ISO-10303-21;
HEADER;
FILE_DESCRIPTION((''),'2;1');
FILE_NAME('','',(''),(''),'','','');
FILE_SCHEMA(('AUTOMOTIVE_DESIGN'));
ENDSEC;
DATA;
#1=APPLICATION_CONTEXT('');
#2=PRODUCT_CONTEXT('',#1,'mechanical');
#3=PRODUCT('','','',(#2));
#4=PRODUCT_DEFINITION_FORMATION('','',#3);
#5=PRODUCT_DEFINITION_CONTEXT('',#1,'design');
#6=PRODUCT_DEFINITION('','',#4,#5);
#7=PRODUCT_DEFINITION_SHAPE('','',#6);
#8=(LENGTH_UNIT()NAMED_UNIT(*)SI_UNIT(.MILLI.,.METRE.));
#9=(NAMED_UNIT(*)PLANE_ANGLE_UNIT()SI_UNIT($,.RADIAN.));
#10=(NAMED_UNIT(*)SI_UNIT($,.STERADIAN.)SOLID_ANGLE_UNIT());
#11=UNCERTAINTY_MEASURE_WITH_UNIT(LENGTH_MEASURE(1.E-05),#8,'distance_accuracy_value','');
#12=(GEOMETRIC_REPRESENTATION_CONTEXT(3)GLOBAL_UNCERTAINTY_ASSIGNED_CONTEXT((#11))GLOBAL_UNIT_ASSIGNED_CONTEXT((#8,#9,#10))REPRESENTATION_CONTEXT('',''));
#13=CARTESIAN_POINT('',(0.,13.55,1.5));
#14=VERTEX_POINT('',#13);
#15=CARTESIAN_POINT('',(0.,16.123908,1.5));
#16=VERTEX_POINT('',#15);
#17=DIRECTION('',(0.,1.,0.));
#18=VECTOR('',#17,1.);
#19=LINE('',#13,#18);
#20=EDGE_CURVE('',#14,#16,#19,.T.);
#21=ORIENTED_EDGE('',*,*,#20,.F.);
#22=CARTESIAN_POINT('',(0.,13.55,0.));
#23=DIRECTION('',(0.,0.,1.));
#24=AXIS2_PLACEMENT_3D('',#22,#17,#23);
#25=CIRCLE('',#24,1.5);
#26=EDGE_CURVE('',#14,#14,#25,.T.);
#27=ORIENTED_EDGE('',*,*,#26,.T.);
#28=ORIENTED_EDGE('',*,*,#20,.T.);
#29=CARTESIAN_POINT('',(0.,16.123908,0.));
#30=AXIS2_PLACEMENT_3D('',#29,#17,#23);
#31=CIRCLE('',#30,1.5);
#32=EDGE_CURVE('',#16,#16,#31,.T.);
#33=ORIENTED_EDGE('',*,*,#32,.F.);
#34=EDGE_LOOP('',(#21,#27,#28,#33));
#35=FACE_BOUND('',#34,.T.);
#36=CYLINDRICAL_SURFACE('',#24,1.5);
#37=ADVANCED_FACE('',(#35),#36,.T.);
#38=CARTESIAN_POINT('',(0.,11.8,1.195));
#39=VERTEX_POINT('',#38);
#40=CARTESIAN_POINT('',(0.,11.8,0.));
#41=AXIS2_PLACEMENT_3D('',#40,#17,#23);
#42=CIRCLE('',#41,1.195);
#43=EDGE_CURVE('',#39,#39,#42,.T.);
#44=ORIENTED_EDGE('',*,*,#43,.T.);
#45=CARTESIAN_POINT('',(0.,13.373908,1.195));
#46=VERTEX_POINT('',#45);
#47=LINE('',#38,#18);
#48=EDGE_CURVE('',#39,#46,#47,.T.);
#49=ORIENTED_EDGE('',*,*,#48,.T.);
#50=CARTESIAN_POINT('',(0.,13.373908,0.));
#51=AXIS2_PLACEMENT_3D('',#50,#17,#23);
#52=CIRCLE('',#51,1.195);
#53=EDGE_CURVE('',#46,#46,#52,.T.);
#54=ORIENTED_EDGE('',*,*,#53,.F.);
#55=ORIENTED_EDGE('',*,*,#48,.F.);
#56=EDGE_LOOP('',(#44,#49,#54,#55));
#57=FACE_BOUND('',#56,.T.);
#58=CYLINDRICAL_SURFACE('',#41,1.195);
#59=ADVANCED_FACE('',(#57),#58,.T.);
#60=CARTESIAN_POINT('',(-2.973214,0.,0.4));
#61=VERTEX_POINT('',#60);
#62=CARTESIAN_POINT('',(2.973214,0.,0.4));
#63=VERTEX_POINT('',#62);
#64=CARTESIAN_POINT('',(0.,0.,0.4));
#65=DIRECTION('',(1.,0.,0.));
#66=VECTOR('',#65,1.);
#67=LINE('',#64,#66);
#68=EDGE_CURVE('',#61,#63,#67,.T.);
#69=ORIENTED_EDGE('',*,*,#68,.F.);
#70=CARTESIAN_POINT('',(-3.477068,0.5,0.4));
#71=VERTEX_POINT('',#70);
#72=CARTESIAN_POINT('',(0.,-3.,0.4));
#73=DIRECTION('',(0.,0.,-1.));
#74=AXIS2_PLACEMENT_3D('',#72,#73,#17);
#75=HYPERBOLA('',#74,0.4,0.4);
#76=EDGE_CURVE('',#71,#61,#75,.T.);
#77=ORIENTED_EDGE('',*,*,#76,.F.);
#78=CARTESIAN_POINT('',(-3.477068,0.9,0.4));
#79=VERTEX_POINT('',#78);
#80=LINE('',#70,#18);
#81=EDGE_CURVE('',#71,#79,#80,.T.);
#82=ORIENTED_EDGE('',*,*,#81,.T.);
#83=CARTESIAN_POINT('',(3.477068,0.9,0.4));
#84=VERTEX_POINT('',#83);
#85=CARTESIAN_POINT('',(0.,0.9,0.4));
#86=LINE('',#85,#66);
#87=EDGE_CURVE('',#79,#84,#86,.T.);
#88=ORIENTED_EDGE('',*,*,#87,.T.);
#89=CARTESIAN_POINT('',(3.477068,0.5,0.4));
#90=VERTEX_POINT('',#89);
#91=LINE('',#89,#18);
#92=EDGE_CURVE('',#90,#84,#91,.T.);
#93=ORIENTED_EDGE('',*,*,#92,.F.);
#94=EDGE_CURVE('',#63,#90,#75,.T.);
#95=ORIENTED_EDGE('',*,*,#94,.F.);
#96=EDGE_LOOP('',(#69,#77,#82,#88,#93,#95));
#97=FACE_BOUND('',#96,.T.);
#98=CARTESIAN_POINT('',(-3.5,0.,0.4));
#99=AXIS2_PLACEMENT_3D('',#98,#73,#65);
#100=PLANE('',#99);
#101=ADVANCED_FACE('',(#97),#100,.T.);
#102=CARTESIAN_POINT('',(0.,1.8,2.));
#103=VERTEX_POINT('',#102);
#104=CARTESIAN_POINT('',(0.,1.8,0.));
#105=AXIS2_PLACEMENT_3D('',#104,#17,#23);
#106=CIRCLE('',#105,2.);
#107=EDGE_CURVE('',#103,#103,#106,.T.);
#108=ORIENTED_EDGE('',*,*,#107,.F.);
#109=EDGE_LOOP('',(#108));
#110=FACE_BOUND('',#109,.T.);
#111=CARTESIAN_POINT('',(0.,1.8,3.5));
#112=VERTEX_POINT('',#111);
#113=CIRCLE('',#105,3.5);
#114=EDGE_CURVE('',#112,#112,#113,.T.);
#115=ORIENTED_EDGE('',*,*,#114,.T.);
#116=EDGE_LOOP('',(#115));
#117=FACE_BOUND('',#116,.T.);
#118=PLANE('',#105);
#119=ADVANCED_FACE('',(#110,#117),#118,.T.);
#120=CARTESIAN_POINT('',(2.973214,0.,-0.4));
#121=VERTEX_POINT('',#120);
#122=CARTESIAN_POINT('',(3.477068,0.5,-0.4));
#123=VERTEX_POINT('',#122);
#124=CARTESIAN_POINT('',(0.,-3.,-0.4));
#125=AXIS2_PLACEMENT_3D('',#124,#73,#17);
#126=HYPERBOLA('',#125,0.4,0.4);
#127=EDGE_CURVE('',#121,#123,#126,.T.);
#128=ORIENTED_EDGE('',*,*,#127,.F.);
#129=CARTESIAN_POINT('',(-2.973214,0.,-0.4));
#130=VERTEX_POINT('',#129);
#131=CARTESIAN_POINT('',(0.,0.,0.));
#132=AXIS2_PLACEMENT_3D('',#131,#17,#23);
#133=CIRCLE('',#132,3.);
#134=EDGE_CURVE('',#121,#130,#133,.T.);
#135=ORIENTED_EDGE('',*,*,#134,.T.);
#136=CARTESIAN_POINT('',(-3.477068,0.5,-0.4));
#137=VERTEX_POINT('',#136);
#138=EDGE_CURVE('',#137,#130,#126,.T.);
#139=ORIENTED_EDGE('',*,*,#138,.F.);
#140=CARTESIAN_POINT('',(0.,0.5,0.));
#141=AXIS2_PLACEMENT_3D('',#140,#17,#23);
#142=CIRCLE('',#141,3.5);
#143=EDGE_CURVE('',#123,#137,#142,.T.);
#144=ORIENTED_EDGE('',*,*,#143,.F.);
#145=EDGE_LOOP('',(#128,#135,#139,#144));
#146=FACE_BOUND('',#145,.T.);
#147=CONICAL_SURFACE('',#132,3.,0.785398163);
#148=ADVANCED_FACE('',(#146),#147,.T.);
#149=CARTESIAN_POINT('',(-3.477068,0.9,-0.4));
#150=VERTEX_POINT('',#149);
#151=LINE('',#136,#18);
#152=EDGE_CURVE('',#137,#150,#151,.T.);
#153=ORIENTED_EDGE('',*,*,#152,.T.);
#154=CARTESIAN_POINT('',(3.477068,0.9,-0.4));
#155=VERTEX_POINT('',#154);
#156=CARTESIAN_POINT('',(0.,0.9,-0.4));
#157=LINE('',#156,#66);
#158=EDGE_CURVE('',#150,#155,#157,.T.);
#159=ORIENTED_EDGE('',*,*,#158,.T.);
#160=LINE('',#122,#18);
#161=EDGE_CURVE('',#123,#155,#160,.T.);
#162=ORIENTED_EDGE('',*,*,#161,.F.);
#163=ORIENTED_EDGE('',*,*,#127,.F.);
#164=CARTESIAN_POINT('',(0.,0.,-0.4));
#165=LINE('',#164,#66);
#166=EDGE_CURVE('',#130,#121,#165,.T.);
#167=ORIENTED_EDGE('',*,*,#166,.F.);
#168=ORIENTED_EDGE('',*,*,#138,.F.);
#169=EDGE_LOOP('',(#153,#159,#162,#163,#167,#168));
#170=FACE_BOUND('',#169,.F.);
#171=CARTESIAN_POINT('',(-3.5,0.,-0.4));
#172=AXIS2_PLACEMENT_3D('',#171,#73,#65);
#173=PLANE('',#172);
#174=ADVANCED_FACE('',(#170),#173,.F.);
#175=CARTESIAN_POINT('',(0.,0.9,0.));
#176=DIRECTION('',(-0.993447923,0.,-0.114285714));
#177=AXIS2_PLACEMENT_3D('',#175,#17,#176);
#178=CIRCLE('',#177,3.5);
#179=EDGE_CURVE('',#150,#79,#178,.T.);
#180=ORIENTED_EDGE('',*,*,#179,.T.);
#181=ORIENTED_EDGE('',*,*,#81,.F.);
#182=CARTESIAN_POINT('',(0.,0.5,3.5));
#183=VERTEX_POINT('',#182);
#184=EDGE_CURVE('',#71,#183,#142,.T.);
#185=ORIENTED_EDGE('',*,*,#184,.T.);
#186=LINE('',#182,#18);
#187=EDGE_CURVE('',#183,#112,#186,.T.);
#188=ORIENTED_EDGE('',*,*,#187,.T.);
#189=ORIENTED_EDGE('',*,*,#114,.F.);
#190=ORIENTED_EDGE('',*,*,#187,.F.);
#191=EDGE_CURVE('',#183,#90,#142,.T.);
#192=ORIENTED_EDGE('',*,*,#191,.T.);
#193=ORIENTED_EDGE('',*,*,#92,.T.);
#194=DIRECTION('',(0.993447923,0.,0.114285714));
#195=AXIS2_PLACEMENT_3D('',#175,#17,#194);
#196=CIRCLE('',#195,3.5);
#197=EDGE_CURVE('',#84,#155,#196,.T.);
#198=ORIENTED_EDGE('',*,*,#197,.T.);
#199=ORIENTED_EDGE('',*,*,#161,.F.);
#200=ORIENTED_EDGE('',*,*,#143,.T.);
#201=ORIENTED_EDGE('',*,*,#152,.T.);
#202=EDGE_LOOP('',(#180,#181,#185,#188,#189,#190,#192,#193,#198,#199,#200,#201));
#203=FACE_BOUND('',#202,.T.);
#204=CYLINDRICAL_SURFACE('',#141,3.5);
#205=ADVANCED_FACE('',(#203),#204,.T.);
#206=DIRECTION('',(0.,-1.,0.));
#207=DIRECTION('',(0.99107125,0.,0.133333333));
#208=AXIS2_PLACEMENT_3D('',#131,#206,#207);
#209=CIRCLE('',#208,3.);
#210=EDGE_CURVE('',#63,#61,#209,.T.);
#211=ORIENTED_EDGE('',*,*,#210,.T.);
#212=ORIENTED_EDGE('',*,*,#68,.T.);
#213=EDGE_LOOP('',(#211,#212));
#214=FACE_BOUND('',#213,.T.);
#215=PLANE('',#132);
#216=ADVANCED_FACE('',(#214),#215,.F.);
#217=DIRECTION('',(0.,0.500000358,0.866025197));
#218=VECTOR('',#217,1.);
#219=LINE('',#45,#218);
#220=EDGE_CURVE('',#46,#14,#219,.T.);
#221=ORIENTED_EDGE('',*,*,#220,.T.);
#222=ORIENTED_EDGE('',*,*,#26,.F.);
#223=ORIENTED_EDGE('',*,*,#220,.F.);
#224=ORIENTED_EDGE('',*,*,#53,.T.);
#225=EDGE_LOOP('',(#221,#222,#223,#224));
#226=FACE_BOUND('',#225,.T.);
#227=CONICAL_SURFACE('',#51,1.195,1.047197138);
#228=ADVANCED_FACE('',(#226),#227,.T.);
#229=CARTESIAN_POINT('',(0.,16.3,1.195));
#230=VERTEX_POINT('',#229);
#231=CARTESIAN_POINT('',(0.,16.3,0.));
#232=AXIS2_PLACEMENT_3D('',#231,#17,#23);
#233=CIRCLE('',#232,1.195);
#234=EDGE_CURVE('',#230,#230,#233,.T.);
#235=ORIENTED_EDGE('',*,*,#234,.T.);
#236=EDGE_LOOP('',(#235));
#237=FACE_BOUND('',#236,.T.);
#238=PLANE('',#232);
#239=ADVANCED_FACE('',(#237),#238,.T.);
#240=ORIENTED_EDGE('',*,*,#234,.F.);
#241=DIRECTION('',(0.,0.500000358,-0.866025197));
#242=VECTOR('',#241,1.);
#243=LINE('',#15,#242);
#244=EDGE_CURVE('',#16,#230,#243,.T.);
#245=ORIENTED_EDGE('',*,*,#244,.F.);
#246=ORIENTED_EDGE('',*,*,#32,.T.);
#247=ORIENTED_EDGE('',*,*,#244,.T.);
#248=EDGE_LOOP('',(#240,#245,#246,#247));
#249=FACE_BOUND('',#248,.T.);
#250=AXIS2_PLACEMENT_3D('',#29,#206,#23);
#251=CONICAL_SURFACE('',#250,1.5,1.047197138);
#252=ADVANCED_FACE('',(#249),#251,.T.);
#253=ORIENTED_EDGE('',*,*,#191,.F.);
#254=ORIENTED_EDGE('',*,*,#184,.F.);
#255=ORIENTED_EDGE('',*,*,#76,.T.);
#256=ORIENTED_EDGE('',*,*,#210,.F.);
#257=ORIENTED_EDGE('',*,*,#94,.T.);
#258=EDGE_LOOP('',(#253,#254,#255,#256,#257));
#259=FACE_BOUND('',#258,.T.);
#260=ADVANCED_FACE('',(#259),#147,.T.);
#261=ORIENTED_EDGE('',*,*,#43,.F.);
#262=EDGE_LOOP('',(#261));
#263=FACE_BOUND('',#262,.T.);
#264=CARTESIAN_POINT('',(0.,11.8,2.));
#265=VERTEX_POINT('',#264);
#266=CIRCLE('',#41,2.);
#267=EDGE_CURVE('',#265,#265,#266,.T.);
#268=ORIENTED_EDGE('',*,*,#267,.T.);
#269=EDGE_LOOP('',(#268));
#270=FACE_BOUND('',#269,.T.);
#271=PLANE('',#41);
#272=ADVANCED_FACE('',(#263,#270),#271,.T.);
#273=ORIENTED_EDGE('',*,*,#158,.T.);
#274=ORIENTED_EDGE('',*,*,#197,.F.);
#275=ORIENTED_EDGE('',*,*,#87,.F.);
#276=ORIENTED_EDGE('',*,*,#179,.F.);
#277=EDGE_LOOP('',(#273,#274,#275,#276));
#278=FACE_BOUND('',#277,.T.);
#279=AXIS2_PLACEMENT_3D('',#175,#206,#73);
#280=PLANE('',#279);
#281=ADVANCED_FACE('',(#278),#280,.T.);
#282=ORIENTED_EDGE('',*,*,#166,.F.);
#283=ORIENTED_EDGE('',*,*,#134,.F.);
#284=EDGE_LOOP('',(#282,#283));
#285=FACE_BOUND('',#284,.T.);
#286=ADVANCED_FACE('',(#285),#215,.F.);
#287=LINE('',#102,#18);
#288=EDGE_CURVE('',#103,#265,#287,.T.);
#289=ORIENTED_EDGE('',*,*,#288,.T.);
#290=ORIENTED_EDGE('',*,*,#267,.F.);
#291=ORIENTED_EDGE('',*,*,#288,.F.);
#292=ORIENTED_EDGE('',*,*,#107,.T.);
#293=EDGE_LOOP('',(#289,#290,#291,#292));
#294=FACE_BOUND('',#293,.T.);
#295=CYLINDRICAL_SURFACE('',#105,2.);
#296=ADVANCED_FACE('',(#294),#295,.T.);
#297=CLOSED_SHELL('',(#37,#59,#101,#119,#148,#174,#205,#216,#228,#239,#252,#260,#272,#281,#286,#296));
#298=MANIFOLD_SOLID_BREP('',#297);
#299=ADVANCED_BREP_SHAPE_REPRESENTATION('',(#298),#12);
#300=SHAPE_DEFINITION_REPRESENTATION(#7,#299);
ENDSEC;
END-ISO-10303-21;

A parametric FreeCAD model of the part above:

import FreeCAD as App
import Part
import Sketcher
Q = App.Units.Quantity


def add_polygon(sketch, points):
    """Adds a closed chain of lines whose ends are joined by coincident constraints."""
    first, n = sketch.GeometryCount, len(points)
    for a, b in zip(points, points[1:] + points[:1]):
        sketch.addGeometry(Part.LineSegment(App.Vector(*a, 0), App.Vector(*b, 0)), False)
    for i in range(n):
        sketch.addConstraint(Sketcher.Constraint("Coincident", first + i, 2, first + (i + 1) % n, 1))

doc = App.newDocument("Part")
params = doc.addObject("Spreadsheet::Sheet", "Params")
for row, (alias, value) in enumerate([
    ("sketch1_width", "10 mm"),
    ("sketch1_height", "3 mm"),
    ("sketch1_width2", "16.3 mm"),
    ("sketch1_width3", "1.3 mm"),
    ("sketch1_height2", "1.5 mm"),
    ("revolution_angle", "360 deg"),
    ("sketch2_width", "7 mm"),
    ("sketch2_height", "0.8 mm"),
    ("pocket1_length", "0.9 mm"),
], start=1):
    params.set(f"A{row}", alias)
    params.set(f"B{row}", "=" + value)
    params.setAlias(f"B{row}", alias)

body = doc.addObject("PartDesign::Body", "Body")

sketch1 = body.newObject("Sketcher::SketchObject", "Sketch")
sketch1.AttachmentSupport = (doc.getObject("YZ_Plane"), [""])
sketch1.MapMode = "FlatFace"
add_polygon(sketch1, [(0, 3), (0, 0), (16.3, 0), (16.3, 1.195), (16.123908, 1.5), (13.55, 1.5), (13.373908, 1.195), (11.8, 1.195), (11.8, 2), (1.8, 2), (1.8, 3.5), (0.5, 3.5)])
sketch1.addConstraint([
    Sketcher.Constraint("Vertical", 0),
    Sketcher.Constraint("Horizontal", 1),
    Sketcher.Constraint("Vertical", 2),
    Sketcher.Constraint("Horizontal", 4),
    Sketcher.Constraint("Horizontal", 6),
    Sketcher.Constraint("Vertical", 7),
    Sketcher.Constraint("Horizontal", 8),
    Sketcher.Constraint("Vertical", 9),
    Sketcher.Constraint("Horizontal", 10),
    Sketcher.Constraint("Coincident", 0, 2, -1, 1),
    Sketcher.Constraint("Horizontal", 2, 2, 5, 2),
    Sketcher.Constraint("Equal", 3, 5),
    Sketcher.Constraint("DistanceX", 8, 2, 8, 1, 10.0),
    Sketcher.Constraint("DistanceY", 0, 2, 0, 1, 3.0),
    Sketcher.Constraint("Angle", 11, Q("-135 deg")),
    Sketcher.Constraint("DistanceX", 1, 1, 1, 2, 16.3),
    Sketcher.Constraint("DistanceX", 10, 2, 10, 1, 1.3),
    Sketcher.Constraint("DistanceY", 9, 1, 9, 2, 1.5),
    Sketcher.Constraint("DistanceY", -1, 1, 7, 2, 2.0),
    Sketcher.Constraint("DistanceY", -1, 1, 3, 2, 1.5),
    Sketcher.Constraint("DistanceY", 2, 1, 2, 2, 1.195),
    Sketcher.Constraint("DistanceX", -1, 1, 4, 2, 13.55),
    Sketcher.Constraint("DistanceX", 4, 2, 4, 1, 2.573908),
])
sketch1.setExpression("Constraints[24]", "Params.sketch1_width")
sketch1.setExpression("Constraints[25]", "Params.sketch1_height")
sketch1.setExpression("Constraints[27]", "Params.sketch1_width2")
sketch1.setExpression("Constraints[28]", "Params.sketch1_width3")
sketch1.setExpression("Constraints[29]", "Params.sketch1_height2")
revolution = body.newObject("PartDesign::Revolution", "Revolution")
revolution.Profile = sketch1
revolution.ReferenceAxis = (sketch1, ["H_Axis"])
revolution.setExpression("Angle", "Params.revolution_angle")

sketch2 = body.newObject("Sketcher::SketchObject", "Sketch001")
sketch2.AttachmentSupport = (doc.getObject("XZ_Plane"), [""])
sketch2.MapMode = "FlatFace"
add_polygon(sketch2, [(3.5, 0.4), (-3.5, 0.4), (-3.5, -0.4), (3.5, -0.4)])
sketch2.addConstraint([
    Sketcher.Constraint("Horizontal", 0),
    Sketcher.Constraint("Vertical", 1),
    Sketcher.Constraint("Horizontal", 2),
    Sketcher.Constraint("Vertical", 3),
    Sketcher.Constraint("Symmetric", 0, 2, 2, 2, -1, 1),
    Sketcher.Constraint("DistanceX", 0, 2, 0, 1, 7.0),
    Sketcher.Constraint("DistanceY", 1, 2, 1, 1, 0.8),
])
sketch2.setExpression("Constraints[9]", "Params.sketch2_width")
sketch2.setExpression("Constraints[10]", "Params.sketch2_height")
pocket1 = body.newObject("PartDesign::Pocket", "Pocket")
pocket1.Profile = sketch2
pocket1.setExpression("Length", "Params.pocket1_length")

doc.recompute()
